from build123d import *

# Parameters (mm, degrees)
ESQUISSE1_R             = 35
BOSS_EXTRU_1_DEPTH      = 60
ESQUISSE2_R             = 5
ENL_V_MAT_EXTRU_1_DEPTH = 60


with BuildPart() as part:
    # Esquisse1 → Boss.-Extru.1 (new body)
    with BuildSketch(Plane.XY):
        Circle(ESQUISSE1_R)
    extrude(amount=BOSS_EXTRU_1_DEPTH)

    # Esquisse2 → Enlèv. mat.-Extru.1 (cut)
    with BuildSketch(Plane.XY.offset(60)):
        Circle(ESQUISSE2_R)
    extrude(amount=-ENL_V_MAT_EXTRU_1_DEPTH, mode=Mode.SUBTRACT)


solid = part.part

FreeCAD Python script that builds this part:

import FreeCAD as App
import Part
import Sketcher
from FreeCAD import Vector
Q = App.Units.Quantity

doc = App.newDocument("Part")
params = doc.addObject("Spreadsheet::Sheet", "Params")
for row, (alias, value) in enumerate([
    ("sketch1_diameter", "70 mm"),
    ("pad1_length", "60 mm"),
    ("sketch2_diameter", "10 mm"),
    ("pocket1_length", "60 mm"),
], start=1):
    params.set(f"A{row}", alias)
    params.set(f"B{row}", "=" + value)
    params.setAlias(f"B{row}", alias)

body = doc.addObject("PartDesign::Body", "Body")

# Sketch on XY plane
sketch1 = body.newObject("Sketcher::SketchObject", "Sketch")
sketch1.AttachmentSupport = (doc.getObject("XY_Plane"), [""])
sketch1.MapMode = "FlatFace"
sketch1.addGeometry(Part.Circle(Vector(0, 0, 0), Vector(0, 0, 1), 35), False)
sketch1.addConstraint([
    Sketcher.Constraint("Coincident", 0, 3, -1, 1),
    Sketcher.Constraint("Diameter", 0, Q("70 mm")),
])
sketch1.setExpression("Constraints[1]", "Params.sketch1_diameter")
pad1 = body.newObject("PartDesign::Pad", "Pad")
pad1.Profile = sketch1
pad1.setExpression("Length", "Params.pad1_length")

# Sketch on XY plane
sketch2 = body.newObject("Sketcher::SketchObject", "Sketch001")
sketch2.AttachmentSupport = (doc.getObject("XY_Plane"), [""])
sketch2.MapMode = "FlatFace"
sketch2.AttachmentOffset = App.Placement(Vector(0, 0, 60), App.Rotation())
sketch2.addGeometry(Part.Circle(Vector(0, 0, 0), Vector(0, 0, 1), 5), False)
sketch2.addConstraint([
    Sketcher.Constraint("Coincident", 0, 3, -1, 1),
    Sketcher.Constraint("Diameter", 0, Q("10 mm")),
])
sketch2.setExpression("Constraints[1]", "Params.sketch2_diameter")
pocket1 = body.newObject("PartDesign::Pocket", "Pocket")
pocket1.Profile = sketch2
pocket1.setExpression("Length", "Params.pocket1_length")

doc.recompute()
